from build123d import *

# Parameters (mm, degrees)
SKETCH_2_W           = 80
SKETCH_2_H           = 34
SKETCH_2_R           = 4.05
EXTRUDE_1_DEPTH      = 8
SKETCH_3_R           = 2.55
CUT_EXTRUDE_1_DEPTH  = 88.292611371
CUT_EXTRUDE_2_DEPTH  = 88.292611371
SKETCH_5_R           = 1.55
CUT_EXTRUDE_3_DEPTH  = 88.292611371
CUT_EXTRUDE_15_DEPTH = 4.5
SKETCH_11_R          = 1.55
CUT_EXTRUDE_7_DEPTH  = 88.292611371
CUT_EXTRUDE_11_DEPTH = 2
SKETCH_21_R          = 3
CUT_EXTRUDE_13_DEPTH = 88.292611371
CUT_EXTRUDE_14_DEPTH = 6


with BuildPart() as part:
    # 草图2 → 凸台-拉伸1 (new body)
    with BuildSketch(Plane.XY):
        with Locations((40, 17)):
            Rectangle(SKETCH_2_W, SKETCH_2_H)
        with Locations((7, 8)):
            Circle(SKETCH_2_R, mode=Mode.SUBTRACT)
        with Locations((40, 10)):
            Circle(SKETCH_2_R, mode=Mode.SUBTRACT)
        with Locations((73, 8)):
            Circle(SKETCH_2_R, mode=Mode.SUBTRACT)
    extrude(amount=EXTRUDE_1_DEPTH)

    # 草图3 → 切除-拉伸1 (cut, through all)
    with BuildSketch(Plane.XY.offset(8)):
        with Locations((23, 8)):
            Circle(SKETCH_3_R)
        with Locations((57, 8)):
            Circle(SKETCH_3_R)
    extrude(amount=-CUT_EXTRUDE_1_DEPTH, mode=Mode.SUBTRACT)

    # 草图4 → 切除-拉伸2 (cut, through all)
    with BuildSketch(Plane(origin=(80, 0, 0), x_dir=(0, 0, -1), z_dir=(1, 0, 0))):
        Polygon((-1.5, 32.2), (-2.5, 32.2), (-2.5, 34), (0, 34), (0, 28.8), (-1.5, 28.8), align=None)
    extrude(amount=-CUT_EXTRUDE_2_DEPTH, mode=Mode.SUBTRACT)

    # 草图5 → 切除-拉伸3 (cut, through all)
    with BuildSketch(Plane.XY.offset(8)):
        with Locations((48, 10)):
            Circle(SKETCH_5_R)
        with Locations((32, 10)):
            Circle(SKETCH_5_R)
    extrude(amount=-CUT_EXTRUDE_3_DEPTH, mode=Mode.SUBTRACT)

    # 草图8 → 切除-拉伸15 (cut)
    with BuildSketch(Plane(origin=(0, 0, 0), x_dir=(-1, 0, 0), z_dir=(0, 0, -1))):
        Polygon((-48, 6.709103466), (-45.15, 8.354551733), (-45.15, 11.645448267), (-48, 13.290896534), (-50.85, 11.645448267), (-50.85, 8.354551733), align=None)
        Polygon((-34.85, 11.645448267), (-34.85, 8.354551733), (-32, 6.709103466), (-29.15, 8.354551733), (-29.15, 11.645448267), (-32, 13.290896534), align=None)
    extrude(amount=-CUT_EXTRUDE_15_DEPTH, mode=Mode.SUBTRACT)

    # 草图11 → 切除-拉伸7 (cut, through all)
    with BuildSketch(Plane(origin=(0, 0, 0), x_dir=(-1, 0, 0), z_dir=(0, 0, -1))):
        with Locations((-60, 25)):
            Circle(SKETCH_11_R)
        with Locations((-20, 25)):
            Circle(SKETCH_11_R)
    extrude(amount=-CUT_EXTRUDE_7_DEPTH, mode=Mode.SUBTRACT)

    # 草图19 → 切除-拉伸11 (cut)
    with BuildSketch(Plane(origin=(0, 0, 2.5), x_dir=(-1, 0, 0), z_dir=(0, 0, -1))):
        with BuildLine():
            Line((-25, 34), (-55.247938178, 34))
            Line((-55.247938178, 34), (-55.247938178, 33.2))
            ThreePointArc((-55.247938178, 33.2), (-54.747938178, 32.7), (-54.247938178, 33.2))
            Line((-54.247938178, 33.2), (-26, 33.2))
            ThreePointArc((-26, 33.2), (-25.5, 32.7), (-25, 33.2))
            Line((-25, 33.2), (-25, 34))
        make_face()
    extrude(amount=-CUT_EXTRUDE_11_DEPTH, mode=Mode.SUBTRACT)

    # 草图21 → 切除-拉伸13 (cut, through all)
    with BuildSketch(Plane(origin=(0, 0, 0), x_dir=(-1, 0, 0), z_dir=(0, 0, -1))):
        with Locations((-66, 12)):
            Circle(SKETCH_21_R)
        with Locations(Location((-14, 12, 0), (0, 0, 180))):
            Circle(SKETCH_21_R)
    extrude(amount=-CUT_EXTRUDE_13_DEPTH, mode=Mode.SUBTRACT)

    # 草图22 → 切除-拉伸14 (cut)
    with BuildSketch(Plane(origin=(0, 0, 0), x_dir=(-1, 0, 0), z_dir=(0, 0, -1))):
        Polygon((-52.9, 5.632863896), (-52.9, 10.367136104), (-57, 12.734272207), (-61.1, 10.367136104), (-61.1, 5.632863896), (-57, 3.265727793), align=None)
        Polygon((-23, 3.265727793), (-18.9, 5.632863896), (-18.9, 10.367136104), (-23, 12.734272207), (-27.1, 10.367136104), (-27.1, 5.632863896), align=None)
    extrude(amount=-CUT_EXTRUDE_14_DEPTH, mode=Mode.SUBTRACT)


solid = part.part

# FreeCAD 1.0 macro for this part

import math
import FreeCAD as App
import Part
import Sketcher
from FreeCAD import Vector
Q = App.Units.Quantity


def add_polygon(sketch, points):
    """Adds a closed chain of lines whose ends are joined by coincident constraints."""
    first, n = sketch.GeometryCount, len(points)
    for a, b in zip(points, points[1:] + points[:1]):
        sketch.addGeometry(Part.LineSegment(App.Vector(*a, 0), App.Vector(*b, 0)), False)
    for i in range(n):
        sketch.addConstraint(Sketcher.Constraint("Coincident", first + i, 2, first + (i + 1) % n, 1))

doc = App.newDocument("Part")
params = doc.addObject("Spreadsheet::Sheet", "Params")
for row, (alias, value) in enumerate([
    ("sketch1_diameter", "8.1 mm"),
    ("sketch1_width", "80 mm"),
    ("sketch1_height", "34 mm"),
    ("pad1_length", "8 mm"),
    ("sketch2_diameter", "5.1 mm"),
    ("sketch3_height", "1 mm"),
    ("sketch3_width", "3.4 mm"),
    ("sketch3_width2", "5.2 mm"),
    ("sketch3_height2", "1.5 mm"),
    ("sketch4_diameter", "3.1 mm"),
    ("pocket4_length", "4.5 mm"),
    ("sketch6_diameter", "3.1 mm"),
    ("sketch7_radius", "0.5 mm"),
    ("sketch7_height", "0.8 mm"),
    ("pocket6_length", "2 mm"),
    ("sketch8_diameter", "6 mm"),
    ("pocket8_length", "6 mm"),
], start=1):
    params.set(f"A{row}", alias)
    params.set(f"B{row}", "=" + value)
    params.setAlias(f"B{row}", alias)

body = doc.addObject("PartDesign::Body", "Body")

# Sketch on XY plane
sketch1 = body.newObject("Sketcher::SketchObject", "Sketch")
sketch1.AttachmentSupport = (doc.getObject("XY_Plane"), [""])
sketch1.MapMode = "FlatFace"
add_polygon(sketch1, [(0, 34), (0, 0), (80, 0), (80, 34)])  # lines 0-3
sketch1.addGeometry(Part.Circle(Vector(7, 8, 0), Vector(0, 0, 1), 4), False)  # 4
sketch1.addGeometry(Part.Circle(Vector(73, 8, 0), Vector(0, 0, 1), 4), False)  # 5
sketch1.addGeometry(Part.Circle(Vector(40, 10, 0), Vector(0, 0, 1), 4), False)  # 6
sketch1.addConstraint([
    Sketcher.Constraint("Vertical", 0),
    Sketcher.Constraint("Horizontal", 1),
    Sketcher.Constraint("Vertical", 2),
    Sketcher.Constraint("Horizontal", 3),
    Sketcher.Constraint("Coincident", 0, 2, -1, 1),
    Sketcher.Constraint("Equal", 4, 5),
    Sketcher.Constraint("Equal", 5, 6),
    Sketcher.Constraint("Horizontal", 4, 3, 5, 3),
    Sketcher.Constraint("Diameter", 4, Q("8.1 mm")),
    Sketcher.Constraint("DistanceX", 1, 1, 1, 2, Q("80 mm")),
    Sketcher.Constraint("DistanceY", 0, 2, 0, 1, Q("34 mm")),
    Sketcher.Constraint("DistanceX", -1, 1, 4, 3, Q("7 mm")),
    Sketcher.Constraint("DistanceY", -1, 1, 4, 3, Q("8 mm")),
    Sketcher.Constraint("DistanceX", -1, 1, 5, 3, Q("73 mm")),
    Sketcher.Constraint("DistanceX", -1, 1, 6, 3, Q("40 mm")),
    Sketcher.Constraint("DistanceY", -1, 1, 6, 3, Q("10 mm")),
])
sketch1.setExpression("Constraints[12]", "Params.sketch1_diameter")
sketch1.setExpression("Constraints[13]", "Params.sketch1_width")
sketch1.setExpression("Constraints[14]", "Params.sketch1_height")
pad1 = body.newObject("PartDesign::Pad", "Pad")
pad1.Profile = sketch1
pad1.setExpression("Length", "Params.pad1_length")

# Sketch on XY plane
sketch2 = body.newObject("Sketcher::SketchObject", "Sketch001")
sketch2.AttachmentSupport = (doc.getObject("XY_Plane"), [""])
sketch2.MapMode = "FlatFace"
sketch2.AttachmentOffset = App.Placement(Vector(0, 0, 8), App.Rotation())
sketch2.addGeometry([
    Part.Circle(Vector(23, 8, 0), Vector(0, 0, 1), 2.5),
    Part.Circle(Vector(57, 8, 0), Vector(0, 0, 1), 2.5),
], False)
sketch2.addConstraint([
    Sketcher.Constraint("Equal", 0, 1),
    Sketcher.Constraint("Horizontal", 0, 3, 1, 3),
    Sketcher.Constraint("Diameter", 0, Q("5.1 mm")),
    Sketcher.Constraint("DistanceX", -1, 1, 0, 3, Q("23 mm")),
    Sketcher.Constraint("DistanceY", -1, 1, 0, 3, Q("8 mm")),
    Sketcher.Constraint("DistanceX", -1, 1, 1, 3, Q("57 mm")),
])
sketch2.setExpression("Constraints[2]", "Params.sketch2_diameter")
pocket1 = body.newObject("PartDesign::Pocket", "Pocket")
pocket1.Profile = sketch2
pocket1.Type = "ThroughAll"

# Sketch on YZ plane
sketch3 = body.newObject("Sketcher::SketchObject", "Sketch002")
sketch3.AttachmentSupport = (doc.getObject("YZ_Plane"), [""])
sketch3.MapMode = "FlatFace"
sketch3.AttachmentOffset = App.Placement(Vector(0, 0, 80), App.Rotation())
add_polygon(sketch3, [(32.2, 2.5), (32.2, 1.5), (28.8, 1.5), (28.8, 0), (34, 0), (34, 2.5)])  # lines 0-5
sketch3.addConstraint([
    Sketcher.Constraint("Vertical", 0),
    Sketcher.Constraint("Horizontal", 1),
    Sketcher.Constraint("Vertical", 2),
    Sketcher.Constraint("Horizontal", 3),
    Sketcher.Constraint("Vertical", 4),
    Sketcher.Constraint("Horizontal", 5),
    Sketcher.Constraint("PointOnObject", 2, 2, -1),
    Sketcher.Constraint("DistanceY", 0, 2, 0, 1, Q("1 mm")),
    Sketcher.Constraint("DistanceX", 1, 2, 1, 1, Q("3.4 mm")),
    Sketcher.Constraint("DistanceX", 3, 1, 3, 2, Q("5.2 mm")),
    Sketcher.Constraint("DistanceY", 2, 2, 2, 1, Q("1.5 mm")),
    Sketcher.Constraint("DistanceX", -1, 1, 3, 2, Q("34 mm")),
])
sketch3.setExpression("Constraints[13]", "Params.sketch3_height")
sketch3.setExpression("Constraints[14]", "Params.sketch3_width")
sketch3.setExpression("Constraints[15]", "Params.sketch3_width2")
sketch3.setExpression("Constraints[16]", "Params.sketch3_height2")
pocket2 = body.newObject("PartDesign::Pocket", "Pocket001")
pocket2.Profile = sketch3
pocket2.Type = "ThroughAll"

# Sketch on XY plane
sketch4 = body.newObject("Sketcher::SketchObject", "Sketch003")
sketch4.AttachmentSupport = (doc.getObject("XY_Plane"), [""])
sketch4.MapMode = "FlatFace"
sketch4.AttachmentOffset = App.Placement(Vector(0, 0, 8), App.Rotation())
sketch4.addGeometry([
    Part.Circle(Vector(48, 10, 0), Vector(0, 0, 1), 1.6),
    Part.Circle(Vector(32, 10, 0), Vector(0, 0, 1), 1.6),
], False)
sketch4.addConstraint([
    Sketcher.Constraint("Equal", 0, 1),
    Sketcher.Constraint("Horizontal", 0, 3, 1, 3),
    Sketcher.Constraint("Diameter", 0, Q("3.1 mm")),
    Sketcher.Constraint("DistanceX", -1, 1, 0, 3, Q("48 mm")),
    Sketcher.Constraint("DistanceY", -1, 1, 0, 3, Q("10 mm")),
    Sketcher.Constraint("DistanceX", -1, 1, 1, 3, Q("32 mm")),
])
sketch4.setExpression("Constraints[2]", "Params.sketch4_diameter")
pocket3 = body.newObject("PartDesign::Pocket", "Pocket002")
pocket3.Profile = sketch4
pocket3.Type = "ThroughAll"

# Sketch on XY plane
sketch5 = body.newObject("Sketcher::SketchObject", "Sketch004")
sketch5.AttachmentSupport = (doc.getObject("XY_Plane"), [""])
sketch5.MapMode = "FlatFace"
add_polygon(sketch5, [(48, 6.7), (45.1, 8.4), (45.1, 11.6), (48, 13.3), (50.9, 11.6), (50.9, 8.4)])  # lines 0-5
add_polygon(sketch5, [(34.9, 11.6), (34.9, 8.4), (32, 6.7), (29.1, 8.4), (29.1, 11.6), (32, 13.3)])  # lines 6-11
sketch5.addConstraint([
    Sketcher.Constraint("Vertical", 1),
    Sketcher.Constraint("Vertical", 4),
    Sketcher.Constraint("Vertical", 6),
    Sketcher.Constraint("Vertical", 9),
    Sketcher.Constraint("Parallel", 0, 3),
    Sketcher.Constraint("Parallel", 2, 5),
    Sketcher.Constraint("Parallel", 5, 7),
    Sketcher.Constraint("Parallel", 3, 8),
    Sketcher.Constraint("Parallel", 7, 10),
    Sketcher.Constraint("Parallel", 8, 11),
    Sketcher.Constraint("Horizontal", 1, 2, 3, 2),
    Sketcher.Constraint("Horizontal", 0, 2, 4, 2),
    Sketcher.Constraint("Horizontal", 4, 2, 6, 2),
    Sketcher.Constraint("Horizontal", 5, 2, 7, 2),
    Sketcher.Constraint("Horizontal", 6, 2, 8, 2),
    Sketcher.Constraint("Horizontal", 3, 2, 9, 2),
    Sketcher.Constraint("Horizontal", 2, 2, 10, 2),
    Sketcher.Constraint("Vertical", 2, 2, 5, 2),
    Sketcher.Constraint("Angle", 0, Q("150 deg")),
    Sketcher.Constraint("DistanceX", -1, 1, 2, 2, Q("48 mm")),
    Sketcher.Constraint("DistanceX", -1, 1, 7, 2, Q("32 mm")),
    Sketcher.Constraint("DistanceX", 1, 2, 3, 2, Q("5.7 mm")),
    Sketcher.Constraint("DistanceY", 1, 1, 1, 2, Q("3.290897 mm")),
    Sketcher.Constraint("DistanceY", -1, 1, 0, 2, Q("8.354552 mm")),
])
pocket4 = body.newObject("PartDesign::Pocket", "Pocket003")
pocket4.Profile = sketch5
pocket4.setExpression("Length", "Params.pocket4_length")
pocket4.Reversed = True

# Sketch on XY plane
sketch6 = body.newObject("Sketcher::SketchObject", "Sketch005")
sketch6.AttachmentSupport = (doc.getObject("XY_Plane"), [""])
sketch6.MapMode = "FlatFace"
sketch6.addGeometry([
    Part.Circle(Vector(60, 25, 0), Vector(0, 0, 1), 1.6),
    Part.Circle(Vector(20, 25, 0), Vector(0, 0, 1), 1.6),
], False)
sketch6.addConstraint([
    Sketcher.Constraint("Equal", 0, 1),
    Sketcher.Constraint("Horizontal", 0, 3, 1, 3),
    Sketcher.Constraint("Diameter", 0, Q("3.1 mm")),
    Sketcher.Constraint("DistanceX", -1, 1, 0, 3, Q("60 mm")),
    Sketcher.Constraint("DistanceY", -1, 1, 0, 3, Q("25 mm")),
    Sketcher.Constraint("DistanceX", -1, 1, 1, 3, Q("20 mm")),
])
sketch6.setExpression("Constraints[2]", "Params.sketch6_diameter")
pocket5 = body.newObject("PartDesign::Pocket", "Pocket004")
pocket5.Profile = sketch6
pocket5.Type = "ThroughAll"
pocket5.Reversed = True

# Sketch on XY plane
sketch7 = body.newObject("Sketcher::SketchObject", "Sketch006")
sketch7.AttachmentSupport = (doc.getObject("XY_Plane"), [""])
sketch7.MapMode = "FlatFace"
sketch7.AttachmentOffset = App.Placement(Vector(0, 0, 2.5), App.Rotation())
sketch7.addGeometry([
    Part.LineSegment(Vector(25, 34, 0), Vector(55.2, 34, 0)),  # 0
    Part.LineSegment(Vector(55.2, 34, 0), Vector(55.2, 33.2, 0)),  # 1
    Part.ArcOfCircle(Part.Circle(Vector(54.7, 33.2, 0), Vector(0, 0, 1), 0.5), math.radians(180), math.radians(360)),  # 2
    Part.LineSegment(Vector(54.2, 33.2, 0), Vector(26, 33.2, 0)),  # 3
    Part.ArcOfCircle(Part.Circle(Vector(25.5, 33.2, 0), Vector(0, 0, 1), 0.5), math.radians(180), math.radians(360)),  # 4
    Part.LineSegment(Vector(25, 33.2, 0), Vector(25, 34, 0)),  # 5
], False)
sketch7.addConstraint([
    Sketcher.Constraint("Coincident", 0, 2, 1, 1),
    Sketcher.Constraint("Tangent", 1, 2, 2, 2),
    Sketcher.Constraint("Coincident", 2, 1, 3, 1),
    Sketcher.Constraint("Coincident", 3, 2, 4, 2),
    Sketcher.Constraint("Tangent", 4, 1, 5, 1),
    Sketcher.Constraint("Coincident", 5, 2, 0, 1),
    Sketcher.Constraint("Horizontal", 0),
    Sketcher.Constraint("Vertical", 1),
    Sketcher.Constraint("Horizontal", 3),
    Sketcher.Constraint("Vertical", 5),
    Sketcher.Constraint("Equal", 2, 4),
    Sketcher.Constraint("Horizontal", 2, 3, 4, 3),
    Sketcher.Constraint("Horizontal", 1, 2, 2, 1),
    Sketcher.Constraint("Radius", 2, Q("0.5 mm")),
    Sketcher.Constraint("DistanceY", 1, 2, 1, 1, Q("0.8 mm")),
    Sketcher.Constraint("DistanceY", -1, 1, 0, 2, Q("34 mm")),
    Sketcher.Constraint("DistanceX", -1, 1, 3, 2, Q("26 mm")),
    Sketcher.Constraint("DistanceX", 0, 1, 0, 2, Q("30.247938 mm")),
])
sketch7.setExpression("Constraints[13]", "Params.sketch7_radius")
sketch7.setExpression("Constraints[14]", "Params.sketch7_height")
pocket6 = body.newObject("PartDesign::Pocket", "Pocket005")
pocket6.Profile = sketch7
pocket6.setExpression("Length", "Params.pocket6_length")
pocket6.Reversed = True

# Sketch on XY plane
sketch8 = body.newObject("Sketcher::SketchObject", "Sketch007")
sketch8.AttachmentSupport = (doc.getObject("XY_Plane"), [""])
sketch8.MapMode = "FlatFace"
sketch8.addGeometry([
    Part.Circle(Vector(66, 12, 0), Vector(0, 0, 1), 3),
    Part.Circle(Vector(14, 12, 0), Vector(0, 0, 1), 3),
], False)
sketch8.addConstraint([
    Sketcher.Constraint("Equal", 0, 1),
    Sketcher.Constraint("Horizontal", 0, 3, 1, 3),
    Sketcher.Constraint("Diameter", 0, Q("6 mm")),
    Sketcher.Constraint("DistanceX", -1, 1, 0, 3, Q("66 mm")),
    Sketcher.Constraint("DistanceY", -1, 1, 0, 3, Q("12 mm")),
    Sketcher.Constraint("DistanceX", -1, 1, 1, 3, Q("14 mm")),
])
sketch8.setExpression("Constraints[2]", "Params.sketch8_diameter")
pocket7 = body.newObject("PartDesign::Pocket", "Pocket006")
pocket7.Profile = sketch8
pocket7.Type = "ThroughAll"
pocket7.Reversed = True

# Sketch on XY plane
sketch9 = body.newObject("Sketcher::SketchObject", "Sketch008")
sketch9.AttachmentSupport = (doc.getObject("XY_Plane"), [""])
sketch9.MapMode = "FlatFace"
add_polygon(sketch9, [(52.9, 5.6), (52.9, 10.4), (57, 12.7), (61.1, 10.4), (61.1, 5.6), (57, 3.3)])  # lines 0-5
add_polygon(sketch9, [(23, 3.3), (18.9, 5.6), (18.9, 10.4), (23, 12.7), (27.1, 10.4), (27.1, 5.6)])  # lines 6-11
sketch9.addConstraint([
    Sketcher.Constraint("Vertical", 0),
    Sketcher.Constraint("Vertical", 3),
    Sketcher.Constraint("Vertical", 7),
    Sketcher.Constraint("Vertical", 10),
    Sketcher.Constraint("Parallel", 1, 4),
    Sketcher.Constraint("Parallel", 2, 5),
    Sketcher.Constraint("Parallel", 5, 6),
    Sketcher.Constraint("Parallel", 4, 8),
    Sketcher.Constraint("Parallel", 6, 9),
    Sketcher.Constraint("Parallel", 8, 11),
    Sketcher.Constraint("Horizontal", 0, 2, 2, 2),
    Sketcher.Constraint("Horizontal", 3, 2, 5, 2),
    Sketcher.Constraint("Horizontal", 5, 2, 6, 2),
    Sketcher.Constraint("Horizontal", 2, 2, 7, 2),
    Sketcher.Constraint("Horizontal", 1, 2, 8, 2),
    Sketcher.Constraint("Horizontal", 7, 2, 9, 2),
    Sketcher.Constraint("Horizontal", 6, 2, 10, 2),
    Sketcher.Constraint("Vertical", 1, 2, 4, 2),
    Sketcher.Constraint("Angle", 1, Q("30 deg")),
    Sketcher.Constraint("DistanceX", -1, 1, 1, 2, Q("57 mm")),
    Sketcher.Constraint("DistanceX", -1, 1, 8, 2, Q("23 mm")),
    Sketcher.Constraint("DistanceX", -1, 1, 0, 2, Q("52.9 mm")),
    Sketcher.Constraint("DistanceY", 0, 1, 0, 2, Q("4.734272 mm")),
    Sketcher.Constraint("DistanceY", -1, 1, 0, 2, Q("10.367136 mm")),
])
pocket8 = body.newObject("PartDesign::Pocket", "Pocket007")
pocket8.Profile = sketch9
pocket8.setExpression("Length", "Params.pocket8_length")
pocket8.Reversed = True

doc.recompute()
